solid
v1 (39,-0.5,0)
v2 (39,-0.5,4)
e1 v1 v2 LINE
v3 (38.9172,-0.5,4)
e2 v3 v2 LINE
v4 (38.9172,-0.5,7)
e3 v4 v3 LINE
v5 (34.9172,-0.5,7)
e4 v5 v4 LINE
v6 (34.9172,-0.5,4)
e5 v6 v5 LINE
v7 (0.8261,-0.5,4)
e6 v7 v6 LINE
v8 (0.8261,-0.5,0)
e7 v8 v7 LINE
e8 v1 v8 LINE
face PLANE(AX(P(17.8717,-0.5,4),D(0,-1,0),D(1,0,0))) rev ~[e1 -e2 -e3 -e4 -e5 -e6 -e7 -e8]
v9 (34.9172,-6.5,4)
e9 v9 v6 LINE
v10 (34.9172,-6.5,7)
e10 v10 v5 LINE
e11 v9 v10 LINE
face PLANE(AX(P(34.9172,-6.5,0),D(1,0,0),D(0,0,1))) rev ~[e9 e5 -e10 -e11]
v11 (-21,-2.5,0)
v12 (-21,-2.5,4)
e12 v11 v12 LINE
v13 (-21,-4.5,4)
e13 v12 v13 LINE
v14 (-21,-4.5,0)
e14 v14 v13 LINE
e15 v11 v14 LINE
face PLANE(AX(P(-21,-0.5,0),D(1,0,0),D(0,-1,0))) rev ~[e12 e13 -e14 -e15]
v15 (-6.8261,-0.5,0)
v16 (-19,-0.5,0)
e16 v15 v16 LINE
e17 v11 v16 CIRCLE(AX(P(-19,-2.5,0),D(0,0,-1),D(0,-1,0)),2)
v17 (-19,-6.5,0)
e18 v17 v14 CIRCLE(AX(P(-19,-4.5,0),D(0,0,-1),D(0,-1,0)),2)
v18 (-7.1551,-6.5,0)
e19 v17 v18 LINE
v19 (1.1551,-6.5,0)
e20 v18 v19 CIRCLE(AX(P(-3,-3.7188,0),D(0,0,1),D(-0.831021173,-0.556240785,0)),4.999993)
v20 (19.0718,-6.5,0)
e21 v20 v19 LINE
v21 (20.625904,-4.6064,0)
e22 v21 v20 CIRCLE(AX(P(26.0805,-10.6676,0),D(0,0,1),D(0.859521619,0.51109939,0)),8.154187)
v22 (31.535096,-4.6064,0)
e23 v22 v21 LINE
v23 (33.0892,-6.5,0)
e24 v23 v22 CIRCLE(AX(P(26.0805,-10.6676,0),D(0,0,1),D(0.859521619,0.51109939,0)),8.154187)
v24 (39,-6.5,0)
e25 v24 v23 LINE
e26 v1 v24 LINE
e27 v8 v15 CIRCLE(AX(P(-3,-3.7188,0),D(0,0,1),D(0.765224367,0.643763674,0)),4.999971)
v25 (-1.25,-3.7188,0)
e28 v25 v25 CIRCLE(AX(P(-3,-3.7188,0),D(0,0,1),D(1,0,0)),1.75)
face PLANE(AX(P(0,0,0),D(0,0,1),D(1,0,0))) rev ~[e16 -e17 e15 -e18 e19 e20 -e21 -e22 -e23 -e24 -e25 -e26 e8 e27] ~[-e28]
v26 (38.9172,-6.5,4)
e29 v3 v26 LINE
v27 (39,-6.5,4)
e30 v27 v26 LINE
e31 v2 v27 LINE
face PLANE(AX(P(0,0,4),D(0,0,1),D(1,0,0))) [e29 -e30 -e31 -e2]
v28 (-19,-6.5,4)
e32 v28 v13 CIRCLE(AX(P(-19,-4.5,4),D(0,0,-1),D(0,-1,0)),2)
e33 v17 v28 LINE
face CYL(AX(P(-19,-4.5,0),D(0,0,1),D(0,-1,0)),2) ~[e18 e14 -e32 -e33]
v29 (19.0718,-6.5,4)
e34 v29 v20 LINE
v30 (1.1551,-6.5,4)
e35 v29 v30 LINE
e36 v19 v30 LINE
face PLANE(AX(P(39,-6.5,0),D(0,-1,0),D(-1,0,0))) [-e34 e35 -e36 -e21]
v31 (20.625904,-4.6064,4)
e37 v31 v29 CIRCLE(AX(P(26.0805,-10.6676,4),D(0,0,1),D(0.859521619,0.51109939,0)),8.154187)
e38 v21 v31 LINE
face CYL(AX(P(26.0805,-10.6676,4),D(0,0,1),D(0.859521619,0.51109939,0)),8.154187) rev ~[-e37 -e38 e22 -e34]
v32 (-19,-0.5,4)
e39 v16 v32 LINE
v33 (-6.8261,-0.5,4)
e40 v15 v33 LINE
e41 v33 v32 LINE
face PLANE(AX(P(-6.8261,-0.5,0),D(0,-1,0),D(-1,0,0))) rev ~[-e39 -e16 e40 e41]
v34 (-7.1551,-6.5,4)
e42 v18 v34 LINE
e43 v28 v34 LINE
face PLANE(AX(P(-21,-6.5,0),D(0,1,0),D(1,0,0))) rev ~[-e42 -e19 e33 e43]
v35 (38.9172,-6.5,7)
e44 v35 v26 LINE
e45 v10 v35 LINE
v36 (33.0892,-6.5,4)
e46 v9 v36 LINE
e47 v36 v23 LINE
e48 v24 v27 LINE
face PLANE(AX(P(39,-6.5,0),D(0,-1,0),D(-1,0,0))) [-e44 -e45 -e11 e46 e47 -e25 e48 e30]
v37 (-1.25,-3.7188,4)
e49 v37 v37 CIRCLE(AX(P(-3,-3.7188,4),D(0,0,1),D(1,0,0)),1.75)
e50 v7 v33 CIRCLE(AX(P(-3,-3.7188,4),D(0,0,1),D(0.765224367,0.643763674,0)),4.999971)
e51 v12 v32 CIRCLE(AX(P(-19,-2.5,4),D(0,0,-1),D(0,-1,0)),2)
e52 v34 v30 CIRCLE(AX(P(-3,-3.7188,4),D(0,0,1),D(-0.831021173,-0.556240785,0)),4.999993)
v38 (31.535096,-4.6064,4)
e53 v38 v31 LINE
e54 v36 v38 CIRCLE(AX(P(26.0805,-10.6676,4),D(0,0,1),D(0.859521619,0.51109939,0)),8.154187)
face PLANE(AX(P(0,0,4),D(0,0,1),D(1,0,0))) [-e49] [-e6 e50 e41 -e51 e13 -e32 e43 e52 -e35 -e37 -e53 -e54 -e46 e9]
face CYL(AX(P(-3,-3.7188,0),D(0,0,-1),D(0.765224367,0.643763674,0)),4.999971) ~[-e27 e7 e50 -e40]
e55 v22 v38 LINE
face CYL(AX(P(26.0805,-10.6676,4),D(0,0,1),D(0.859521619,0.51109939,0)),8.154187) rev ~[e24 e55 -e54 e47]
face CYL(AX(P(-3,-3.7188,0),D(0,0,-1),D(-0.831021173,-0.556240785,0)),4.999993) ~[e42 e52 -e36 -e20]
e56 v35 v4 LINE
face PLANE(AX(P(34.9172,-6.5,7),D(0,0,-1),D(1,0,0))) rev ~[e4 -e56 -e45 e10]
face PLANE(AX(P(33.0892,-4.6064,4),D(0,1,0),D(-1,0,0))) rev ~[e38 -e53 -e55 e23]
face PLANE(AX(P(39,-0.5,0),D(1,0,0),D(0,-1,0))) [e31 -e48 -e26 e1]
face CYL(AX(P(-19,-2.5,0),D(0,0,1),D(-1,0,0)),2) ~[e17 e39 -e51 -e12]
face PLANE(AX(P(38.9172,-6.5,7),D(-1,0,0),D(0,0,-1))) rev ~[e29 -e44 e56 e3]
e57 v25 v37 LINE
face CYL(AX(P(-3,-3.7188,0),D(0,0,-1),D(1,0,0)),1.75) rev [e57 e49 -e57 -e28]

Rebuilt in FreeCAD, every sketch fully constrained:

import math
import FreeCAD as App
import Part
import Sketcher
Q = App.Units.Quantity


def edges_at(feature, points):
    """Names of the edges that pass closest to the given points."""
    edges = feature.Shape.Edges
    near = lambda p: min(range(len(edges)), key=lambda i: edges[i].distToShape(Part.Vertex(*p))[0])
    return sorted({f"Edge{near(p) + 1}" for p in points})

doc = App.newDocument("Part")
body = doc.addObject("PartDesign::Body", "Body")

# Sketch on XY plane
sketch1 = body.newObject("Sketcher::SketchObject", "Sketch")
sketch1.AttachmentSupport = (doc.getObject("XY_Plane"), [""])
sketch1.MapMode = "FlatFace"
sketch1.addGeometry([
    Part.LineSegment(App.Vector(39, -0.5, 0), App.Vector(0.8, -0.5, 0)),  # 0
    Part.ArcOfCircle(Part.Circle(App.Vector(-3, -3.7, 0), App.Vector(0, 0, 1), 5), math.radians(40), math.radians(140)),  # 1
    Part.LineSegment(App.Vector(-6.8, -0.5, 0), App.Vector(-21, -0.5, 0)),  # 2
    Part.LineSegment(App.Vector(-21, -0.5, 0), App.Vector(-21, -6.5, 0)),  # 3
    Part.LineSegment(App.Vector(-21, -6.5, 0), App.Vector(-7.2, -6.5, 0)),  # 4
    Part.ArcOfCircle(Part.Circle(App.Vector(-3, -3.7, 0), App.Vector(0, 0, 1), 5), math.radians(-146), math.radians(-34)),  # 5
    Part.LineSegment(App.Vector(1.2, -6.5, 0), App.Vector(39, -6.5, 0)),  # 6
    Part.LineSegment(App.Vector(39, -6.5, 0), App.Vector(39, -0.5, 0)),  # 7
    Part.Circle(App.Vector(-3, -3.7, 0), App.Vector(0, 0, 1), 1.8),  # 8
], False)
sketch1.addConstraint([
    Sketcher.Constraint("Coincident", 0, 2, 1, 1),
    Sketcher.Constraint("Coincident", 1, 2, 2, 1),
    Sketcher.Constraint("Coincident", 2, 2, 3, 1),
    Sketcher.Constraint("Coincident", 3, 2, 4, 1),
    Sketcher.Constraint("Coincident", 4, 2, 5, 1),
    Sketcher.Constraint("Coincident", 5, 2, 6, 1),
    Sketcher.Constraint("Coincident", 6, 2, 7, 1),
    Sketcher.Constraint("Coincident", 7, 2, 0, 1),
    Sketcher.Constraint("Horizontal", 0),
    Sketcher.Constraint("Horizontal", 2),
    Sketcher.Constraint("Vertical", 3),
    Sketcher.Constraint("Horizontal", 4),
    Sketcher.Constraint("Horizontal", 6),
    Sketcher.Constraint("Vertical", 7),
    Sketcher.Constraint("Coincident", 5, 3, 1, 3),
    Sketcher.Constraint("Coincident", 8, 3, 1, 3),
    Sketcher.Constraint("Equal", 1, 5),
    Sketcher.Constraint("Horizontal", 0, 2, 1, 2),
    Sketcher.Constraint("Horizontal", 4, 2, 5, 2),
    Sketcher.Constraint("DistanceY", 3, 2, 3, 1, Q("6 mm")),
    Sketcher.Constraint("Radius", 1, Q("5 mm")),
    Sketcher.Constraint("Diameter", 8, Q("3.5 mm")),
    Sketcher.Constraint("DistanceX", 1, 3, -1, 1, Q("3 mm")),
    Sketcher.Constraint("DistanceX", 2, 2, -1, 1, Q("21 mm")),
    Sketcher.Constraint("DistanceX", -1, 1, 6, 2, Q("39 mm")),
    Sketcher.Constraint("DistanceY", 0, 2, -1, 1, Q("0.5 mm")),
    Sketcher.Constraint("DistanceX", 0, 2, 0, 1, Q("38.174 mm")),
])
pad1 = body.newObject("PartDesign::Pad", "Pad")
pad1.Profile = sketch1
pad1.Length = 4

# Sketch on XZ plane
sketch2 = body.newObject("Sketcher::SketchObject", "Sketch001")
sketch2.AttachmentSupport = (doc.getObject("XZ_Plane"), [""])
sketch2.MapMode = "FlatFace"
sketch2.AttachmentOffset = App.Placement(App.Vector(0, 0, 6.5), App.Rotation())
sketch2.addGeometry([
    Part.LineSegment(App.Vector(34.9, 0, 0), App.Vector(38.9, 0, 0)),
    Part.LineSegment(App.Vector(38.9, 0, 0), App.Vector(38.9, 7, 0)),
    Part.LineSegment(App.Vector(38.9, 7, 0), App.Vector(34.9, 7, 0)),
    Part.LineSegment(App.Vector(34.9, 7, 0), App.Vector(34.9, 0, 0)),
], False)
sketch2.addConstraint([
    Sketcher.Constraint("Coincident", 0, 2, 1, 1),
    Sketcher.Constraint("Coincident", 1, 2, 2, 1),
    Sketcher.Constraint("Coincident", 2, 2, 3, 1),
    Sketcher.Constraint("Coincident", 3, 2, 0, 1),
    Sketcher.Constraint("Horizontal", 0),
    Sketcher.Constraint("Vertical", 1),
    Sketcher.Constraint("Horizontal", 2),
    Sketcher.Constraint("Vertical", 3),
    Sketcher.Constraint("PointOnObject", 0, 2, -1),
    Sketcher.Constraint("DistanceX", 0, 1, 0, 2, Q("4 mm")),
    Sketcher.Constraint("DistanceY", 1, 1, 1, 2, Q("7 mm")),
    Sketcher.Constraint("DistanceX", -1, 1, 0, 2, Q("38.9172 mm")),
])
pad2 = body.newObject("PartDesign::Pad", "Pad001")
pad2.Profile = sketch2
pad2.Length = 6
pad2.Reversed = True

# Sketch on XY plane
sketch3 = body.newObject("Sketcher::SketchObject", "Sketch002")
sketch3.AttachmentSupport = (doc.getObject("XY_Plane"), [""])
sketch3.MapMode = "FlatFace"
sketch3.AttachmentOffset = App.Placement(App.Vector(0, 0, 4), App.Rotation())
sketch3.addGeometry([
    Part.LineSegment(App.Vector(19, -6, 0), App.Vector(33, -6, 0)),
    Part.ArcOfCircle(Part.Circle(App.Vector(26, -11, 0), App.Vector(0, 0, 1), 8), math.radians(31), math.radians(149)),
], False)
sketch3.addConstraint([
    Sketcher.Constraint("Coincident", 0, 1, 1, 2),
    Sketcher.Constraint("Coincident", 1, 1, 0, 2),
    Sketcher.Constraint("Horizontal", 0),
    Sketcher.Constraint("DistanceY", 0, 1, -1, 1, Q("6.5 mm")),
    Sketcher.Constraint("Radius", 1, Q("8.1542 mm")),
    Sketcher.Constraint("DistanceX", 0, 1, 0, 2, Q("14.0174 mm")),
    Sketcher.Constraint("DistanceX", -1, 1, 1, 3, Q("26.0805 mm")),
])
pocket1 = body.newObject("PartDesign::Pocket", "Pocket")
pocket1.Profile = sketch3
pocket1.Length = 6

# Sketch on XY plane
sketch4 = body.newObject("Sketcher::SketchObject", "Sketch003")
sketch4.AttachmentSupport = (doc.getObject("XY_Plane"), [""])
sketch4.MapMode = "FlatFace"
sketch4.AttachmentOffset = App.Placement(App.Vector(0, 0, 4), App.Rotation())
sketch4.addGeometry([
    Part.LineSegment(App.Vector(33.1, -0.5, 0), App.Vector(17.9, -0.5, 0)),
    Part.LineSegment(App.Vector(17.9, -0.5, 0), App.Vector(17.9, -4.6, 0)),
    Part.LineSegment(App.Vector(17.9, -4.6, 0), App.Vector(33.1, -4.6, 0)),
    Part.LineSegment(App.Vector(33.1, -4.6, 0), App.Vector(33.1, -0.5, 0)),
], False)
sketch4.addConstraint([
    Sketcher.Constraint("Coincident", 0, 2, 1, 1),
    Sketcher.Constraint("Coincident", 1, 2, 2, 1),
    Sketcher.Constraint("Coincident", 2, 2, 3, 1),
    Sketcher.Constraint("Coincident", 3, 2, 0, 1),
    Sketcher.Constraint("Horizontal", 0),
    Sketcher.Constraint("Vertical", 1),
    Sketcher.Constraint("Horizontal", 2),
    Sketcher.Constraint("Vertical", 3),
    Sketcher.Constraint("DistanceY", 0, 2, -1, 1, Q("0.5 mm")),
    Sketcher.Constraint("DistanceX", 0, 2, 0, 1, Q("15.2175 mm")),
    Sketcher.Constraint("DistanceY", 1, 2, 1, 1, Q("4.1064 mm")),
    Sketcher.Constraint("DistanceX", -1, 1, 0, 2, Q("17.8717 mm")),
])
pad3 = body.newObject("PartDesign::Pad", "Pad002")
pad3.Profile = sketch4
pad3.Length = 4
pad3.Reversed = True
doc.recompute()

fillet = body.newObject("PartDesign::Fillet", "Fillet")
fillet.Base = (pad3, edges_at(pad3, [(-21, -0.5, 2), (-21, -6.5, 2)]))
fillet.Radius = 2

doc.recompute()
